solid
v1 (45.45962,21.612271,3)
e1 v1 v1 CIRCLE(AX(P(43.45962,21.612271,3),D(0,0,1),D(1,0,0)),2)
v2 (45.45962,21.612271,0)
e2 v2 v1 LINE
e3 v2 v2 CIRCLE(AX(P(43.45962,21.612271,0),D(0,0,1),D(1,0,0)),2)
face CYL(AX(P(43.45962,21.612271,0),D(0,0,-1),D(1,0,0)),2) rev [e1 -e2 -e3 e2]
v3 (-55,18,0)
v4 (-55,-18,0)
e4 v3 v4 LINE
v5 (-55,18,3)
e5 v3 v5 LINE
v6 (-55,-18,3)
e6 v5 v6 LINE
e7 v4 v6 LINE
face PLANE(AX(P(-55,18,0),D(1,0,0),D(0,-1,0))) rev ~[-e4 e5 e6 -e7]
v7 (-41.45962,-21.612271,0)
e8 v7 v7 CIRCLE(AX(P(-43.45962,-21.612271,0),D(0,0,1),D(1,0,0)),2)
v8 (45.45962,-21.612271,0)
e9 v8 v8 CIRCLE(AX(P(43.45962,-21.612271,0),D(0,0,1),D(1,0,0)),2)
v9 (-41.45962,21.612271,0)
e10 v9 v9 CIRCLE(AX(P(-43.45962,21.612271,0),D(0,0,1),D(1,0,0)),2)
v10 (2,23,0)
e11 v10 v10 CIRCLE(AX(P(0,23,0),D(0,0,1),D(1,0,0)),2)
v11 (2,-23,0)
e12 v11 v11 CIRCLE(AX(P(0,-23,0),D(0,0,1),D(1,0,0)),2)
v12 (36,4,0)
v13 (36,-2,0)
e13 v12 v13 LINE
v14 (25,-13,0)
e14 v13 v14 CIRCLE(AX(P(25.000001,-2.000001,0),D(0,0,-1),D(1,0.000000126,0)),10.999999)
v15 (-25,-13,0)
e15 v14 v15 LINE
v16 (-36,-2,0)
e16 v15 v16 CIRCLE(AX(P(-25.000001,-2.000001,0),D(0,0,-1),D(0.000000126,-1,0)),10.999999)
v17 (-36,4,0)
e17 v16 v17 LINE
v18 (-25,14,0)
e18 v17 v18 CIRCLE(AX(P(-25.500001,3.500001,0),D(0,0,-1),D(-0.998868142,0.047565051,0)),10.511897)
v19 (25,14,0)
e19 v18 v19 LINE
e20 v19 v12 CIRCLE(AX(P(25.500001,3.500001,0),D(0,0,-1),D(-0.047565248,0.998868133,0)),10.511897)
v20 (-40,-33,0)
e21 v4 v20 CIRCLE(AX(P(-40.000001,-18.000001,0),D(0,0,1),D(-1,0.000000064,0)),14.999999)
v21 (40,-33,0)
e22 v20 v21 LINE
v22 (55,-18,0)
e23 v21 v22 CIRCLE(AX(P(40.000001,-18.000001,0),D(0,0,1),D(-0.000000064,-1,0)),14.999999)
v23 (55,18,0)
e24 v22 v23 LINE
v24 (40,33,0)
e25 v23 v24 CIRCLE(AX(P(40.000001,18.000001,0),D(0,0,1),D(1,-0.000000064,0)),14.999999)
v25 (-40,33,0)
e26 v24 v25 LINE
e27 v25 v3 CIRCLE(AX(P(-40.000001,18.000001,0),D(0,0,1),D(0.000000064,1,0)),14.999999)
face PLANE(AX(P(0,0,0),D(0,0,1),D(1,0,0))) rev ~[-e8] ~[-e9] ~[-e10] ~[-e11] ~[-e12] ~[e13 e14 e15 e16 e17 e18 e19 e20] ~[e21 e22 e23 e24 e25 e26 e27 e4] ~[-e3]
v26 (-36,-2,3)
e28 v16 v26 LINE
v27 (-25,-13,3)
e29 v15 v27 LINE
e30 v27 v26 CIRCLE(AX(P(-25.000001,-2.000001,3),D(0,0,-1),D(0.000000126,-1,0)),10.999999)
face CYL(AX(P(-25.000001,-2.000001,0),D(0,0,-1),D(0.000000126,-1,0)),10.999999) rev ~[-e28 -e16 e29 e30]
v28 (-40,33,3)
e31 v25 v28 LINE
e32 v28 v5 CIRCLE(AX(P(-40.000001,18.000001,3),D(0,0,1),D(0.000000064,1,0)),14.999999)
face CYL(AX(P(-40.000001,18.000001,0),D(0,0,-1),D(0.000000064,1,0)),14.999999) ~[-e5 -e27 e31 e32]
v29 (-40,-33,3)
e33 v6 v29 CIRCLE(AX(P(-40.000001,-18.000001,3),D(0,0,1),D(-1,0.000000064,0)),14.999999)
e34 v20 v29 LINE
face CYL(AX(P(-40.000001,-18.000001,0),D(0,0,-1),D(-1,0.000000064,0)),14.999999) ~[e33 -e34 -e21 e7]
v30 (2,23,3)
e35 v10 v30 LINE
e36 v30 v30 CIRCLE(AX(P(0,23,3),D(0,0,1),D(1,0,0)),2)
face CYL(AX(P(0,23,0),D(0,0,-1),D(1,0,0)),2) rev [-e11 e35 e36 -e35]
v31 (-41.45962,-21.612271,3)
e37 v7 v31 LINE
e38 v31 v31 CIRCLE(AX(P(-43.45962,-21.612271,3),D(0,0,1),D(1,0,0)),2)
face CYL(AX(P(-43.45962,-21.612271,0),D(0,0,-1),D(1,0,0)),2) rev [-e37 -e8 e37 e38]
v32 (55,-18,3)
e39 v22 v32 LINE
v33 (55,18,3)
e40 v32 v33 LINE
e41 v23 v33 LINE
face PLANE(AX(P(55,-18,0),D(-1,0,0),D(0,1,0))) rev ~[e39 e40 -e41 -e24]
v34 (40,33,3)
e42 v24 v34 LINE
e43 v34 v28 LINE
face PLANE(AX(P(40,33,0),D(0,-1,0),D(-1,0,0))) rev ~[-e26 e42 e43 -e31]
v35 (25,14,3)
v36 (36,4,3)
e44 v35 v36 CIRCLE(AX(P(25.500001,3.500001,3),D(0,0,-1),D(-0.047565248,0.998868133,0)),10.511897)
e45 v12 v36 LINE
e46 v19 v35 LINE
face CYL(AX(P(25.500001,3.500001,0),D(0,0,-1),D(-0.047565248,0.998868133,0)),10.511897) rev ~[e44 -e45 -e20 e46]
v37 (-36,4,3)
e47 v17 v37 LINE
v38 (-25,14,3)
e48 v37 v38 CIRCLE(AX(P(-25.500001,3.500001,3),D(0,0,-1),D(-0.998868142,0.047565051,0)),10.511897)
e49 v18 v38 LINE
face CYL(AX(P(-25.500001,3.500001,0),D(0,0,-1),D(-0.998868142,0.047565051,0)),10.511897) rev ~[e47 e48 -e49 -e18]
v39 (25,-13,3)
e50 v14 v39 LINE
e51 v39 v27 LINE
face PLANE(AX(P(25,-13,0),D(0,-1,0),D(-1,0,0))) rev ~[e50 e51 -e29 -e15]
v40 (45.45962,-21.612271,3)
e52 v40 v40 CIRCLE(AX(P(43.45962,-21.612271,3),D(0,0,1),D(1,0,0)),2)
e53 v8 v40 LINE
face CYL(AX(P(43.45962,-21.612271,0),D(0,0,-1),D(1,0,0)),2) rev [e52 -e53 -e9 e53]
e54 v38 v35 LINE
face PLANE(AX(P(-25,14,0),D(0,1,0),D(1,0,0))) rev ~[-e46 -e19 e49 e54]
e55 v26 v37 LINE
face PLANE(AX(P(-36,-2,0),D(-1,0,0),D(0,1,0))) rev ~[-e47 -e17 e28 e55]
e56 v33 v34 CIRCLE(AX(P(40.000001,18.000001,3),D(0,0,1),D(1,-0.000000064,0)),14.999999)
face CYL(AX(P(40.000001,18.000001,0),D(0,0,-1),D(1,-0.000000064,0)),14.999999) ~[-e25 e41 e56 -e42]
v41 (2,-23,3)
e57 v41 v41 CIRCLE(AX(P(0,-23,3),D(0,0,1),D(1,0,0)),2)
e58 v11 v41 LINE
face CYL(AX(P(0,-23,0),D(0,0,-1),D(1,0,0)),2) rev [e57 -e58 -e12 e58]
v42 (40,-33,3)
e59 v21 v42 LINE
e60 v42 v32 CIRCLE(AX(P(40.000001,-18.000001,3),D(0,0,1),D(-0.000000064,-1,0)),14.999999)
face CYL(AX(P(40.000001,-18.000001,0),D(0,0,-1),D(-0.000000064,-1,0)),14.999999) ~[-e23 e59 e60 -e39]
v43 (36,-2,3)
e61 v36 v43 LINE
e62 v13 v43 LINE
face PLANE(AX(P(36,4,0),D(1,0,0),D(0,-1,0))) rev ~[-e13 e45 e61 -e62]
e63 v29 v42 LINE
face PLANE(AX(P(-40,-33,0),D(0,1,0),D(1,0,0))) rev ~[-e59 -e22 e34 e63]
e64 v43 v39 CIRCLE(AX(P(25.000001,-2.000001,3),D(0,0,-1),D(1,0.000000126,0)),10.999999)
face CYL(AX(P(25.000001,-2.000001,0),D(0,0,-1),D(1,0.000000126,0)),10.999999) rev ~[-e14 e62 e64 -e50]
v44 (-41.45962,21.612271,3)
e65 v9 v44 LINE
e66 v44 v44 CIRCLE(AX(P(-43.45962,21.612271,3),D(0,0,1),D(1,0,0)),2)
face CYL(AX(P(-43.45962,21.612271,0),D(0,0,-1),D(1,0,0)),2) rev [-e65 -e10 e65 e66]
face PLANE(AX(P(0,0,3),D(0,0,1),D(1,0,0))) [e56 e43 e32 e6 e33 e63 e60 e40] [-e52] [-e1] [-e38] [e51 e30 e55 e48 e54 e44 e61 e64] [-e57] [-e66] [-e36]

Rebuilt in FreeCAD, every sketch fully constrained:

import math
import FreeCAD as App
import Part
import Sketcher

doc = App.newDocument("Part")
body = doc.addObject("PartDesign::Body", "Body")

sketch1 = doc.addObject("Sketcher::SketchObject", "Sketch")
body.addObject(sketch1)
sketch1.AttachmentSupport = (doc.XY_Plane, [""])
sketch1.MapMode = "FlatFace"
sketch1.addGeometry([
    Part.LineSegment(App.Vector(-40, -33, 0), App.Vector(40, -33, 0)),
    Part.ArcOfCircle(Part.Circle(App.Vector(40, -18, 0), App.Vector(0, 0, 1), 15), math.radians(-90), math.radians(0)),
    Part.LineSegment(App.Vector(55, -18, 0), App.Vector(55, 18, 0)),
    Part.ArcOfCircle(Part.Circle(App.Vector(40, 18, 0), App.Vector(0, 0, 1), 15), math.radians(0), math.radians(90)),
    Part.LineSegment(App.Vector(40, 33, 0), App.Vector(-40, 33, 0)),
    Part.ArcOfCircle(Part.Circle(App.Vector(-40, 18, 0), App.Vector(0, 0, 1), 15), math.radians(90), math.radians(180)),
    Part.LineSegment(App.Vector(-55, 18, 0), App.Vector(-55, -18, 0)),
    Part.ArcOfCircle(Part.Circle(App.Vector(-40, -18, 0), App.Vector(0, 0, 1), 15), math.radians(180), math.radians(270)),
    Part.Circle(App.Vector(-43.5, -21.6, 0), App.Vector(0, 0, 1), 2),
    Part.Circle(App.Vector(0, -23, 0), App.Vector(0, 0, 1), 2),
    Part.Circle(App.Vector(43.5, -21.6, 0), App.Vector(0, 0, 1), 2),
    Part.Circle(App.Vector(-43.5, 21.6, 0), App.Vector(0, 0, 1), 2),
    Part.LineSegment(App.Vector(-36, -2, 0), App.Vector(-36, 4, 0)),
    Part.ArcOfCircle(Part.Circle(App.Vector(-25.5, 3.5, 0), App.Vector(0, 0, 1), 10.5), math.radians(87), math.radians(177)),
    Part.LineSegment(App.Vector(-25, 14, 0), App.Vector(25, 14, 0)),
    Part.ArcOfCircle(Part.Circle(App.Vector(25.5, 3.5, 0), App.Vector(0, 0, 1), 10.5), math.radians(3), math.radians(93)),
    Part.LineSegment(App.Vector(36, 4, 0), App.Vector(36, -2, 0)),
    Part.ArcOfCircle(Part.Circle(App.Vector(25, -2, 0), App.Vector(0, 0, 1), 11), math.radians(-90), math.radians(0)),
    Part.LineSegment(App.Vector(25, -13, 0), App.Vector(-25, -13, 0)),
    Part.ArcOfCircle(Part.Circle(App.Vector(-25, -2, 0), App.Vector(0, 0, 1), 11), math.radians(180), math.radians(270)),
    Part.Circle(App.Vector(0, 23, 0), App.Vector(0, 0, 1), 2),
    Part.Circle(App.Vector(43.5, 21.6, 0), App.Vector(0, 0, 1), 2),
], False)
sketch1.addConstraint([
    Sketcher.Constraint("Tangent", 0, 2, 1, 1),
    Sketcher.Constraint("Tangent", 1, 2, 2, 1),
    Sketcher.Constraint("Tangent", 2, 2, 3, 1),
    Sketcher.Constraint("Tangent", 3, 2, 4, 1),
    Sketcher.Constraint("Tangent", 4, 2, 5, 1),
    Sketcher.Constraint("Tangent", 5, 2, 6, 1),
    Sketcher.Constraint("Tangent", 6, 2, 7, 1),
    Sketcher.Constraint("Tangent", 7, 2, 0, 1),
    Sketcher.Constraint("Coincident", 12, 2, 13, 2),
    Sketcher.Constraint("Coincident", 13, 1, 14, 1),
    Sketcher.Constraint("Coincident", 14, 2, 15, 2),
    Sketcher.Constraint("Coincident", 15, 1, 16, 1),
    Sketcher.Constraint("Tangent", 16, 2, 17, 2),
    Sketcher.Constraint("Tangent", 17, 1, 18, 1),
    Sketcher.Constraint("Tangent", 18, 2, 19, 2),
    Sketcher.Constraint("Tangent", 19, 1, 12, 1),
    Sketcher.Constraint("Horizontal", 0),
    Sketcher.Constraint("Vertical", 2),
    Sketcher.Constraint("Horizontal", 4),
    Sketcher.Constraint("Vertical", 6),
    Sketcher.Constraint("Vertical", 12),
    Sketcher.Constraint("Horizontal", 14),
    Sketcher.Constraint("Vertical", 16),
    Sketcher.Constraint("Horizontal", 18),
    Sketcher.Constraint("Equal", 1, 3),
    Sketcher.Constraint("Equal", 3, 5),
    Sketcher.Constraint("Equal", 5, 7),
    Sketcher.Constraint("Equal", 8, 9),
    Sketcher.Constraint("Equal", 9, 10),
    Sketcher.Constraint("Equal", 10, 11),
    Sketcher.Constraint("Equal", 13, 15),
    Sketcher.Constraint("Equal", 17, 19),
    Sketcher.Constraint("Equal", 11, 20),
    Sketcher.Constraint("Equal", 20, 21),
    Sketcher.Constraint("Symmetric", 1, 3, 5, 3, -1, 1),
    Sketcher.Constraint("Symmetric", 10, 3, 11, 3, -1, 1),
    Sketcher.Constraint("Symmetric", 9, 3, 20, 3, -1, 1),
    Sketcher.Constraint("Symmetric", 8, 3, 21, 3, -1, 1),
    Sketcher.Constraint("Symmetric", 8, 3, 10, 3, -2),
    Sketcher.Constraint("Symmetric", 13, 3, 15, 3, -2),
    Sketcher.Constraint("PointOnObject", 9, 3, -2),
    Sketcher.Constraint("Horizontal", 12, 2, 15, 1),
    Sketcher.Constraint("Vertical", 19, 3, 13, 1),
    Sketcher.Constraint("Diameter", 8, 4.0),
    Sketcher.Constraint("Radius", 1, 14.999999),
    Sketcher.Constraint("Radius", 17, 10.999999),
    Sketcher.Constraint("DistanceX", 0, 1, 0, 2, 80.0),
    Sketcher.Constraint("DistanceX", 14, 1, 14, 2, 50.0),
    Sketcher.Constraint("DistanceY", 2, 1, 2, 2, 36.0),
    Sketcher.Constraint("DistanceY", 12, 1, 12, 2, 6.0),
    Sketcher.Constraint("DistanceY", 9, 3, -1, 1, 23.0),
    Sketcher.Constraint("DistanceY", 17, 3, -1, 1, 2.000001),
    Sketcher.Constraint("DistanceY", -1, 1, 13, 1, 14.0),
    Sketcher.Constraint("DistanceX", 13, 3, 15, 3, 51.000002),
    Sketcher.Constraint("DistanceX", 8, 3, -1, 1, 43.45962),
    Sketcher.Constraint("DistanceY", 8, 3, -1, 1, 21.612271),
])
pad1 = doc.addObject("PartDesign::Pad", "Pad")
body.addObject(pad1)
pad1.Profile = sketch1
pad1.Length = 3

doc.recompute()
